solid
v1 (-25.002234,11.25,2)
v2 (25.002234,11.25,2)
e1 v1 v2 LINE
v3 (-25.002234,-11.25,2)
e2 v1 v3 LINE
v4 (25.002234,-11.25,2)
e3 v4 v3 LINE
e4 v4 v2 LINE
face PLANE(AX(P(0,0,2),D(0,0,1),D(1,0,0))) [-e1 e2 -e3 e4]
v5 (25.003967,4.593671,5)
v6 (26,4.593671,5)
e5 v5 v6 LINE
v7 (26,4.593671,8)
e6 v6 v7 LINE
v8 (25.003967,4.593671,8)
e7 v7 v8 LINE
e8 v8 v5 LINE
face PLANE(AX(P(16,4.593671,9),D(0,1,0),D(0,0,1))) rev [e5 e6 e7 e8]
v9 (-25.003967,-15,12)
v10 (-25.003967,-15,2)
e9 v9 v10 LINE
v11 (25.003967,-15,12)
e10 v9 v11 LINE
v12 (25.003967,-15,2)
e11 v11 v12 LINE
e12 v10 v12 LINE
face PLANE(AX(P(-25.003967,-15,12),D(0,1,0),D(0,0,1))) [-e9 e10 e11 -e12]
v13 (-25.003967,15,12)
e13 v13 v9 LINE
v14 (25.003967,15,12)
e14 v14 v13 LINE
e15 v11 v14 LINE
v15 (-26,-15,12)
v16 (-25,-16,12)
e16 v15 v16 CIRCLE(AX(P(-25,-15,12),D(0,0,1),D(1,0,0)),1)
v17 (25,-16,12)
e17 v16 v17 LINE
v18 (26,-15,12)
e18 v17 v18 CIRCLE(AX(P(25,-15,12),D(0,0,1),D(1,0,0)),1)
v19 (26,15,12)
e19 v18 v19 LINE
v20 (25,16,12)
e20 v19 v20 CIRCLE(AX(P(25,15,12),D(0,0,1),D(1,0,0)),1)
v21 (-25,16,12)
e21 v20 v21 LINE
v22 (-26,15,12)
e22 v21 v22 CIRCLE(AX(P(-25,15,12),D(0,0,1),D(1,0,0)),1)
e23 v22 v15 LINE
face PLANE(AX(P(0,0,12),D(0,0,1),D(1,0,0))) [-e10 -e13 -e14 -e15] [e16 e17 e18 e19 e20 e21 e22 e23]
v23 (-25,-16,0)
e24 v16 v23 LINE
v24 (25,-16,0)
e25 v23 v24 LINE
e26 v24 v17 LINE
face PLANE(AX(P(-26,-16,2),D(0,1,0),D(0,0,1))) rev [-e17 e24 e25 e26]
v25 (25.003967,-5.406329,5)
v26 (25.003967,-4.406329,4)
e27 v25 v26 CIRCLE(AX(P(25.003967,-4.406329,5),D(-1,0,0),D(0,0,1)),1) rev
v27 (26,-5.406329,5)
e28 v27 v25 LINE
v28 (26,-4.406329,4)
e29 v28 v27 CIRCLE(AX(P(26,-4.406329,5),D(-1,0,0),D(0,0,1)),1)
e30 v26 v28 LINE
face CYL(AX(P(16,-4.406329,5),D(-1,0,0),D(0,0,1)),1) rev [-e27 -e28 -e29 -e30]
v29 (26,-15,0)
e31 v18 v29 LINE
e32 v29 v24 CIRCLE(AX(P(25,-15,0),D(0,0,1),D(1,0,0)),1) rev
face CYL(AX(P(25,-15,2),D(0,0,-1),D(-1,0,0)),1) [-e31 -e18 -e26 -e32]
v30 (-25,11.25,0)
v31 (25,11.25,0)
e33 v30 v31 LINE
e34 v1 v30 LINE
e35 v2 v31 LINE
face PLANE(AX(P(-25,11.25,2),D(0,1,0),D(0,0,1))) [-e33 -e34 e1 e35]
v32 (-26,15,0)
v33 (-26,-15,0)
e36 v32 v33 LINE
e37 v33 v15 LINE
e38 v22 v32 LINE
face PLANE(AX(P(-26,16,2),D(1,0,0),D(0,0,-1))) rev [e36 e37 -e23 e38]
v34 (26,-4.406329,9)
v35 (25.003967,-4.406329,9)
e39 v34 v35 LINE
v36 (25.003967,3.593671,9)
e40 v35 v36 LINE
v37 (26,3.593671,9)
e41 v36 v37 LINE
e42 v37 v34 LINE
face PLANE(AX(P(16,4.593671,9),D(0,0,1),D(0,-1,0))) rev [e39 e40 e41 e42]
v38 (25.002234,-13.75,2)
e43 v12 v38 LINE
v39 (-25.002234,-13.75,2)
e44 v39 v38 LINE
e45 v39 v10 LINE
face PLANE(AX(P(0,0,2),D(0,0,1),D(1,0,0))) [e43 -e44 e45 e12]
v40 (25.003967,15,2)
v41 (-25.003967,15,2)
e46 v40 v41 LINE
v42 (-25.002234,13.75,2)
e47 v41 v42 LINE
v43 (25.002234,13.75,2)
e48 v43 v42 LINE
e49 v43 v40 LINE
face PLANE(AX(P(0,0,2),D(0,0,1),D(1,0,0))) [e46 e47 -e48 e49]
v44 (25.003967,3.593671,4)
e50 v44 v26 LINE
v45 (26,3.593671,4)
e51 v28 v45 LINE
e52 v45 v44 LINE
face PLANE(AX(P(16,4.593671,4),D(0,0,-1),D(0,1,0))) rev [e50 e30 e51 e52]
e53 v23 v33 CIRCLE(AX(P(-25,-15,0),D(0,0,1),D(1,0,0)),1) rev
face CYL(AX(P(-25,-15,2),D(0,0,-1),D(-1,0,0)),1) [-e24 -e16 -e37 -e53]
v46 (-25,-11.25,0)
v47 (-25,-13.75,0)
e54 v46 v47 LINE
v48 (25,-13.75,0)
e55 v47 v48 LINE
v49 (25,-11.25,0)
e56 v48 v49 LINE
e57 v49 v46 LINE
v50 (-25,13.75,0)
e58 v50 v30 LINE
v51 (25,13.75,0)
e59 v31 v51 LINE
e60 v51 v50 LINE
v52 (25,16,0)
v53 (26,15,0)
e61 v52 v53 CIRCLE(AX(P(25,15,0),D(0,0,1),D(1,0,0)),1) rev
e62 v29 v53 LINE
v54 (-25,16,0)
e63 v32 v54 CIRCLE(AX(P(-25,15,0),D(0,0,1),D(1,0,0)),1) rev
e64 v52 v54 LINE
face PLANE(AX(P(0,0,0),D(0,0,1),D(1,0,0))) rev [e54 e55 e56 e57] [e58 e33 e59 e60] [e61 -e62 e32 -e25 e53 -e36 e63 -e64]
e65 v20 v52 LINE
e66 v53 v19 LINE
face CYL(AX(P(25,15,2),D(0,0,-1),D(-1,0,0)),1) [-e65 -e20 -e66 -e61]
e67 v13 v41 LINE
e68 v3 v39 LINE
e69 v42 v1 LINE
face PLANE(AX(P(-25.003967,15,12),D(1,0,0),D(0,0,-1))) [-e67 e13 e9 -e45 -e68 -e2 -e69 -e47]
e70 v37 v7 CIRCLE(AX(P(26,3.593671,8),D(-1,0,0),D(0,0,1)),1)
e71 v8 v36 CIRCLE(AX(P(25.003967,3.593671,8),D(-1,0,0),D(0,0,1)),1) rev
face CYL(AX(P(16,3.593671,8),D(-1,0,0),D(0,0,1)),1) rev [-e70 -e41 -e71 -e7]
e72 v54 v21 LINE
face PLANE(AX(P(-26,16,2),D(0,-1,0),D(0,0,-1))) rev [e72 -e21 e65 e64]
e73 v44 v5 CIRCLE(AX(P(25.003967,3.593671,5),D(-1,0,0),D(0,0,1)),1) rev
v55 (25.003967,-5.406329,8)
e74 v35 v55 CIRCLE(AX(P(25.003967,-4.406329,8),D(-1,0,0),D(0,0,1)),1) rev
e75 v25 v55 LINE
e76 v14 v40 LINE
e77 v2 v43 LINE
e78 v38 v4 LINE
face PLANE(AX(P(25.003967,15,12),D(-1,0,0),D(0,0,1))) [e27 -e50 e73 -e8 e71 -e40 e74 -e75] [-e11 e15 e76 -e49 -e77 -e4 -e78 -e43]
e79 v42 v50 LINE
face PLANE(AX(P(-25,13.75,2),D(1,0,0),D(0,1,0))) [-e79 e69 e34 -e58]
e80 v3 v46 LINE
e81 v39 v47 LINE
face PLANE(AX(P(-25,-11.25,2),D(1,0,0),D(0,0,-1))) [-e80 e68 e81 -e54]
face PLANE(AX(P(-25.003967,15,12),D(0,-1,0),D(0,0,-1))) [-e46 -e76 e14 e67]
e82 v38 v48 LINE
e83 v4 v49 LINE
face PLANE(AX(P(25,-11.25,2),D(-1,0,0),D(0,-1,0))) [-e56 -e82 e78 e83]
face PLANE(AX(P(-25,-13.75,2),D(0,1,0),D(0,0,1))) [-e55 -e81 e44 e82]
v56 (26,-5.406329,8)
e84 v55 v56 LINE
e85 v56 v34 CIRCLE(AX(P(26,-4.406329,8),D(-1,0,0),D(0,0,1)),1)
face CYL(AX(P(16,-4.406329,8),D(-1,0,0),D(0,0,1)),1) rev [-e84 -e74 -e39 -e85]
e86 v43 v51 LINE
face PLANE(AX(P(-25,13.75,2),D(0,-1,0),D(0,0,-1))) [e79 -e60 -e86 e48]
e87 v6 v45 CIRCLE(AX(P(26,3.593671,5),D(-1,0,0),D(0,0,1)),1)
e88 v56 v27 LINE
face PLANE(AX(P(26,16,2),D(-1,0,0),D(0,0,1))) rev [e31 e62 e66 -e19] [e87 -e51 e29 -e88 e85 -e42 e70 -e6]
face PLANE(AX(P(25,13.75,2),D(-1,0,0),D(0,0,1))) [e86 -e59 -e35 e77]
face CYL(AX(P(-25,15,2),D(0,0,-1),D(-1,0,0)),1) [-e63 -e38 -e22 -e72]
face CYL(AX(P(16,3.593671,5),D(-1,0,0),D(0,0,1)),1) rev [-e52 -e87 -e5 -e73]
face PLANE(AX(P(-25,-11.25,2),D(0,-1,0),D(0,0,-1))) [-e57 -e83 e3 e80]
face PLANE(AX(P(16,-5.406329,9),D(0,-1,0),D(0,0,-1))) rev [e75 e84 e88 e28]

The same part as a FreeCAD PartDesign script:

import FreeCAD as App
import Part
import Sketcher

V = App.Vector


def edges_at(feature, points):
    """Names of the edges that pass closest to the given points."""
    edges = feature.Shape.Edges
    near = lambda p: min(range(len(edges)), key=lambda i: edges[i].distToShape(Part.Vertex(*p))[0])
    return sorted({f"Edge{near(p) + 1}" for p in points})


def add_polygon(sketch, points):
    """Adds a closed chain of lines whose ends are joined by coincident constraints."""
    first, n = sketch.GeometryCount, len(points)
    for a, b in zip(points, points[1:] + points[:1]):
        sketch.addGeometry(Part.LineSegment(App.Vector(*a, 0), App.Vector(*b, 0)), False)
    for i in range(n):
        sketch.addConstraint(Sketcher.Constraint("Coincident", first + i, 2, first + (i + 1) % n, 1))

doc = App.newDocument("Part")
body = doc.addObject("PartDesign::Body", "Body")

# Sketch on XY plane
sketch1 = body.newObject("Sketcher::SketchObject", "Sketch")
sketch1.AttachmentSupport = (doc.getObject("XY_Plane"), [""])
sketch1.MapMode = "FlatFace"
add_polygon(sketch1, [(-26, 16), (-26, -16), (26, -16), (26, 16)])  # lines 0-3
add_polygon(sketch1, [(25, -13.75), (-25, -13.75), (-25, -11.25), (25, -11.25)])  # lines 4-7
add_polygon(sketch1, [(25, 11.25), (-25, 11.25), (-25, 13.75), (25, 13.75)])  # lines 8-11
sketch1.addConstraint([
    Sketcher.Constraint("Vertical", 0),
    Sketcher.Constraint("Horizontal", 1),
    Sketcher.Constraint("Vertical", 2),
    Sketcher.Constraint("Horizontal", 3),
    Sketcher.Constraint("Horizontal", 4),
    Sketcher.Constraint("Vertical", 5),
    Sketcher.Constraint("Horizontal", 6),
    Sketcher.Constraint("Vertical", 7),
    Sketcher.Constraint("Horizontal", 8),
    Sketcher.Constraint("Vertical", 9),
    Sketcher.Constraint("Horizontal", 10),
    Sketcher.Constraint("Vertical", 11),
    Sketcher.Constraint("Symmetric", 0, 2, 2, 2, -1, 1),
    Sketcher.Constraint("Symmetric", 6, 2, 8, 2, -1, 1),
    Sketcher.Constraint("Symmetric", 4, 2, 10, 2, -1, 1),
    Sketcher.Constraint("Vertical", 5, 2, 8, 2),
    Sketcher.Constraint("DistanceX", 1, 1, 1, 2, 52.0),
    Sketcher.Constraint("DistanceX", 4, 2, 4, 1, 50.0),
    Sketcher.Constraint("DistanceY", 0, 2, 0, 1, 32.0),
    Sketcher.Constraint("DistanceY", 5, 1, 5, 2, 2.5),
    Sketcher.Constraint("DistanceY", 4, 2, 8, 2, 25.0),
])
pad1 = body.newObject("PartDesign::Pad", "Pad")
pad1.Profile = sketch1
pad1.Length = 2

# Sketch on XY plane
sketch2 = body.newObject("Sketcher::SketchObject", "Sketch001")
sketch2.AttachmentSupport = (doc.getObject("XY_Plane"), [""])
sketch2.MapMode = "FlatFace"
sketch2.AttachmentOffset = App.Placement(V(0, 0, 2), App.Rotation())
add_polygon(sketch2, [(-26, 16), (-26, -16), (26, -16), (26, 16)])  # lines 0-3
add_polygon(sketch2, [(25.003967, -15), (-25.003967, -15), (-25.003967, 15), (25.003967, 15)])  # lines 4-7
sketch2.addConstraint([
    Sketcher.Constraint("Vertical", 0),
    Sketcher.Constraint("Horizontal", 1),
    Sketcher.Constraint("Vertical", 2),
    Sketcher.Constraint("Horizontal", 3),
    Sketcher.Constraint("Horizontal", 4),
    Sketcher.Constraint("Vertical", 5),
    Sketcher.Constraint("Horizontal", 6),
    Sketcher.Constraint("Vertical", 7),
    Sketcher.Constraint("Symmetric", 0, 2, 2, 2, -1, 1),
    Sketcher.Constraint("Symmetric", 4, 2, 6, 2, -1, 1),
    Sketcher.Constraint("DistanceX", 1, 1, 1, 2, 52.0),
    Sketcher.Constraint("DistanceY", 0, 2, 0, 1, 32.0),
    Sketcher.Constraint("DistanceY", 5, 1, 5, 2, 30.0),
    Sketcher.Constraint("DistanceX", 4, 2, 4, 1, 50.007934),
])
pad2 = body.newObject("PartDesign::Pad", "Pad001")
pad2.Profile = sketch2
pad2.Length = 10

# Sketch on YZ plane
sketch3 = body.newObject("Sketcher::SketchObject", "Sketch002")
sketch3.AttachmentSupport = (doc.getObject("YZ_Plane"), [""])
sketch3.MapMode = "FlatFace"
sketch3.AttachmentOffset = App.Placement(V(0, 0, 26), App.Rotation())
add_polygon(sketch3, [(4.593671, 9), (-5.406329, 9), (-5.406329, 4), (4.593671, 4)])  # lines 0-3
sketch3.addConstraint([
    Sketcher.Constraint("Horizontal", 0),
    Sketcher.Constraint("Vertical", 1),
    Sketcher.Constraint("Horizontal", 2),
    Sketcher.Constraint("Vertical", 3),
    Sketcher.Constraint("DistanceX", 0, 2, 0, 1, 10.0),
    Sketcher.Constraint("DistanceY", 1, 2, 1, 1, 5.0),
    Sketcher.Constraint("DistanceY", -1, 1, 0, 2, 9.0),
    Sketcher.Constraint("DistanceX", 0, 2, -1, 1, 5.406329),
])
pocket1 = body.newObject("PartDesign::Pocket", "Pocket")
pocket1.Profile = sketch3
pocket1.Length = 10
doc.recompute()

fillet = body.newObject("PartDesign::Fillet", "Fillet")
fillet.Base = (pocket1, edges_at(pocket1, [(26, 16, 6)]))
fillet.Radius = 1
doc.recompute()

fillet2 = body.newObject("PartDesign::Fillet", "Fillet001")
fillet2.Base = (fillet, edges_at(fillet, [(26, -16, 6)]))
fillet2.Radius = 1
doc.recompute()

fillet3 = body.newObject("PartDesign::Fillet", "Fillet002")
fillet3.Base = (fillet2, edges_at(fillet2, [(-26, -16, 6)]))
fillet3.Radius = 1
doc.recompute()

fillet4 = body.newObject("PartDesign::Fillet", "Fillet003")
fillet4.Base = (fillet3, edges_at(fillet3, [(-26, 16, 6)]))
fillet4.Radius = 1
doc.recompute()

fillet5 = body.newObject("PartDesign::Fillet", "Fillet004")
fillet5.Base = (fillet4, edges_at(fillet4, [(25.502, 4.594, 4)]))
fillet5.Radius = 1
doc.recompute()

fillet6 = body.newObject("PartDesign::Fillet", "Fillet005")
fillet6.Base = (fillet5, edges_at(fillet5, [(25.502, -5.406, 4)]))
fillet6.Radius = 1
doc.recompute()

fillet7 = body.newObject("PartDesign::Fillet", "Fillet006")
fillet7.Base = (fillet6, edges_at(fillet6, [(25.502, -5.406, 9)]))
fillet7.Radius = 1
doc.recompute()

fillet8 = body.newObject("PartDesign::Fillet", "Fillet007")
fillet8.Base = (fillet7, edges_at(fillet7, [(25.502, 4.594, 9)]))
fillet8.Radius = 1

doc.recompute()
